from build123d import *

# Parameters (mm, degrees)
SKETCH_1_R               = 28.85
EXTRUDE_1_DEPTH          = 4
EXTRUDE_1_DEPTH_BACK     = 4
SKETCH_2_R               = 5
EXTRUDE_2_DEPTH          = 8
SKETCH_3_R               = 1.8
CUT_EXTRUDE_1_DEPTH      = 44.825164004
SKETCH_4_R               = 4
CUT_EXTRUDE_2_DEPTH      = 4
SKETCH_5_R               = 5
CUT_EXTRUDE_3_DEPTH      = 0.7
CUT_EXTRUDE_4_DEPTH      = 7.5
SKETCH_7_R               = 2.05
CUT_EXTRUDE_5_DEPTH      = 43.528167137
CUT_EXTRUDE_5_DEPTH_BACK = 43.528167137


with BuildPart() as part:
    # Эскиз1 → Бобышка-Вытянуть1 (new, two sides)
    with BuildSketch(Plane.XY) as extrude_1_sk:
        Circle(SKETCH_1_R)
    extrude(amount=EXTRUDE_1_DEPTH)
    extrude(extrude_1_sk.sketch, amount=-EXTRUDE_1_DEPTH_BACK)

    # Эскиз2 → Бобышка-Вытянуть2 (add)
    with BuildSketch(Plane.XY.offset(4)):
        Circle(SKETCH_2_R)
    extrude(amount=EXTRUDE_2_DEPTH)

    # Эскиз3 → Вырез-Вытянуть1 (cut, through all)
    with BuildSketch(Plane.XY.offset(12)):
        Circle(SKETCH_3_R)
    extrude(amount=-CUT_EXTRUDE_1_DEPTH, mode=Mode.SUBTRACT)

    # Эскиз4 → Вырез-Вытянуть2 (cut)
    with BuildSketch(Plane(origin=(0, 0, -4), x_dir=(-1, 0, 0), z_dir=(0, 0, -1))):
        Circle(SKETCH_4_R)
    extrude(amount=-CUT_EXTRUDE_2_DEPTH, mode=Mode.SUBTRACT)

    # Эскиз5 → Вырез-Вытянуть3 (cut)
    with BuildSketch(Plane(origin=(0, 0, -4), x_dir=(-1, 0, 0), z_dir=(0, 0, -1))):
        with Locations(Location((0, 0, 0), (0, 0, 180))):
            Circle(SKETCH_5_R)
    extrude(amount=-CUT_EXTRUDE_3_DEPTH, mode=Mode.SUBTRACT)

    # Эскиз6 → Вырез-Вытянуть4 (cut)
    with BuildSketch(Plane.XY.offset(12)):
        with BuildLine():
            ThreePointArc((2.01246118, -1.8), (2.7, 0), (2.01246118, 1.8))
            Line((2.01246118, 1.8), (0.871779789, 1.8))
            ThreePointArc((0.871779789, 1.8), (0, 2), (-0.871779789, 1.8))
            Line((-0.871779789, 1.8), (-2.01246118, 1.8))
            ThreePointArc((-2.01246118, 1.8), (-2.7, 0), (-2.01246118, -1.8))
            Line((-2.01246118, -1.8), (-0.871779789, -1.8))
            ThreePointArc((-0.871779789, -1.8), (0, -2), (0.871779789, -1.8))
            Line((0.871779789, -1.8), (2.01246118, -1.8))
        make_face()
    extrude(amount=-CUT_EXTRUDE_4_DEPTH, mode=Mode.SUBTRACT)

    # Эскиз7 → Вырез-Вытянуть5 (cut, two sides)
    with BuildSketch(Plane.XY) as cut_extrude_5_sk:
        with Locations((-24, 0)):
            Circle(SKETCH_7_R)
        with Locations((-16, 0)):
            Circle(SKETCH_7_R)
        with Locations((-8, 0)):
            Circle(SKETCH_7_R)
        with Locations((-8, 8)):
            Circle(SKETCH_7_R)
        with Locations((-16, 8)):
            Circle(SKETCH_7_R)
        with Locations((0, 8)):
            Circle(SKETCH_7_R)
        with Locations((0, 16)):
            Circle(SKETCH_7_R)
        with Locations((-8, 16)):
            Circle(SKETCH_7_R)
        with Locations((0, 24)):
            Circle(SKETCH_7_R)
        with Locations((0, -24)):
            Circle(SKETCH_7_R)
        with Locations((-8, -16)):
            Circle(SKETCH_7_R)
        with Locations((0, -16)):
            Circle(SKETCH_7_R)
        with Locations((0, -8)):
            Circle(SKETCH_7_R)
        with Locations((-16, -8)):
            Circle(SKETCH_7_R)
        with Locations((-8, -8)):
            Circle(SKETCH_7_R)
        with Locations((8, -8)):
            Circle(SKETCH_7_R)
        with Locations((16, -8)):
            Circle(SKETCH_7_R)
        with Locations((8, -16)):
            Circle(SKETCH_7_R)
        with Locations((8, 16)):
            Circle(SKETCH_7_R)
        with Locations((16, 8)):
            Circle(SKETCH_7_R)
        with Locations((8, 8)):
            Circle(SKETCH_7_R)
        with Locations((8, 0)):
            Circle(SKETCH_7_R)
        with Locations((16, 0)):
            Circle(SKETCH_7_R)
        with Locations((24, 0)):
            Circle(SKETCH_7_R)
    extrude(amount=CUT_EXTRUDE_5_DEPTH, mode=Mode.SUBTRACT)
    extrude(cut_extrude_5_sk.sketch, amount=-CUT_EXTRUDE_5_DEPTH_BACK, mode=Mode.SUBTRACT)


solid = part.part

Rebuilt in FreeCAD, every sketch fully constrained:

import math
import FreeCAD as App
import Part
import Sketcher

V = App.Vector

doc = App.newDocument("Part")
params = doc.addObject("Spreadsheet::Sheet", "Params")
for row, (alias, value) in enumerate([
    ("sketch1_diameter", "57.7 mm"),
    ("pad1_length", "4 mm"),
    ("pad1_length2", "4 mm"),
    ("sketch2_diameter", "10 mm"),
    ("pad2_length", "8 mm"),
    ("sketch3_diameter", "3.6 mm"),
    ("sketch4_diameter", "8 mm"),
    ("pocket2_length", "4 mm"),
    ("sketch5_diameter", "10 mm"),
    ("pocket3_length", "0.7 mm"),
    ("sketch6_radius", "2 mm"),
    ("sketch6_radius2", "2.7 mm"),
    ("pocket4_length", "7.5 mm"),
    ("sketch7_diameter", "4.1 mm"),
], start=1):
    params.set(f"A{row}", alias)
    params.set(f"B{row}", "=" + value)
    params.setAlias(f"B{row}", alias)

body = doc.addObject("PartDesign::Body", "Body")

# Sketch on XY plane
sketch1 = doc.addObject("Sketcher::SketchObject", "Sketch")
body.addObject(sketch1)
sketch1.AttachmentSupport = (doc.XY_Plane, [""])
sketch1.MapMode = "FlatFace"
sketch1.addGeometry(Part.Circle(V(0, 0, 0), V(0, 0, 1), 28.85), False)
sketch1.addConstraint([
    Sketcher.Constraint("Coincident", 0, 3, -1, 1),
    Sketcher.Constraint("Diameter", 0, 57.7),
])
sketch1.setExpression("Constraints[1]", "Params.sketch1_diameter")
pad1 = doc.addObject("PartDesign::Pad", "Pad")
body.addObject(pad1)
pad1.Profile = sketch1
pad1.Type = "TwoLengths"
pad1.setExpression("Length", "Params.pad1_length")
pad1.setExpression("Length2", "Params.pad1_length2")

# Sketch on XY plane
sketch2 = doc.addObject("Sketcher::SketchObject", "Sketch001")
body.addObject(sketch2)
sketch2.AttachmentSupport = (doc.XY_Plane, [""])
sketch2.MapMode = "FlatFace"
sketch2.AttachmentOffset = App.Placement(V(0, 0, 4), App.Rotation())
sketch2.addGeometry(Part.Circle(V(0, 0, 0), V(0, 0, 1), 5), False)
sketch2.addConstraint([
    Sketcher.Constraint("Coincident", 0, 3, -1, 1),
    Sketcher.Constraint("Diameter", 0, 10.0),
])
sketch2.setExpression("Constraints[1]", "Params.sketch2_diameter")
pad2 = doc.addObject("PartDesign::Pad", "Pad001")
body.addObject(pad2)
pad2.Profile = sketch2
pad2.setExpression("Length", "Params.pad2_length")

# Sketch on XY plane
sketch3 = doc.addObject("Sketcher::SketchObject", "Sketch002")
body.addObject(sketch3)
sketch3.AttachmentSupport = (doc.XY_Plane, [""])
sketch3.MapMode = "FlatFace"
sketch3.AttachmentOffset = App.Placement(V(0, 0, 12), App.Rotation())
sketch3.addGeometry(Part.Circle(V(0, 0, 0), V(0, 0, 1), 1.8), False)
sketch3.addConstraint([
    Sketcher.Constraint("Coincident", 0, 3, -1, 1),
    Sketcher.Constraint("Diameter", 0, 3.6),
])
sketch3.setExpression("Constraints[1]", "Params.sketch3_diameter")
pocket1 = doc.addObject("PartDesign::Pocket", "Pocket")
body.addObject(pocket1)
pocket1.Profile = sketch3
pocket1.Type = "ThroughAll"

# Sketch on XY plane
sketch4 = doc.addObject("Sketcher::SketchObject", "Sketch003")
body.addObject(sketch4)
sketch4.AttachmentSupport = (doc.XY_Plane, [""])
sketch4.MapMode = "FlatFace"
sketch4.AttachmentOffset = App.Placement(V(0, 0, -4), App.Rotation())
sketch4.addGeometry(Part.Circle(V(0, 0, 0), V(0, 0, 1), 4), False)
sketch4.addConstraint([
    Sketcher.Constraint("Coincident", 0, 3, -1, 1),
    Sketcher.Constraint("Diameter", 0, 8.0),
])
sketch4.setExpression("Constraints[1]", "Params.sketch4_diameter")
pocket2 = doc.addObject("PartDesign::Pocket", "Pocket001")
body.addObject(pocket2)
pocket2.Profile = sketch4
pocket2.setExpression("Length", "Params.pocket2_length")
pocket2.Reversed = True

# Sketch on XY plane
sketch5 = doc.addObject("Sketcher::SketchObject", "Sketch004")
body.addObject(sketch5)
sketch5.AttachmentSupport = (doc.XY_Plane, [""])
sketch5.MapMode = "FlatFace"
sketch5.AttachmentOffset = App.Placement(V(0, 0, -4), App.Rotation())
sketch5.addGeometry(Part.Circle(V(0, 0, 0), V(0, 0, 1), 5), False)
sketch5.addConstraint([
    Sketcher.Constraint("Coincident", 0, 3, -1, 1),
    Sketcher.Constraint("Diameter", 0, 10.0),
])
sketch5.setExpression("Constraints[1]", "Params.sketch5_diameter")
pocket3 = doc.addObject("PartDesign::Pocket", "Pocket002")
body.addObject(pocket3)
pocket3.Profile = sketch5
pocket3.setExpression("Length", "Params.pocket3_length")
pocket3.Reversed = True

# Sketch on XY plane
sketch6 = doc.addObject("Sketcher::SketchObject", "Sketch005")
body.addObject(sketch6)
sketch6.AttachmentSupport = (doc.XY_Plane, [""])
sketch6.MapMode = "FlatFace"
sketch6.AttachmentOffset = App.Placement(V(0, 0, 12), App.Rotation())
sketch6.addGeometry([
    Part.ArcOfCircle(Part.Circle(V(0, 0, 0), V(0, 0, 1), 2.7), math.radians(-41.810315), math.radians(41.810315)),  # 0
    Part.LineSegment(V(2.012461, 1.8, 0), V(0.87178, 1.8, 0)),  # 1
    Part.ArcOfCircle(Part.Circle(V(0, 0, 0), V(0, 0, 1), 2), math.radians(64.158067), math.radians(115.841933)),  # 2
    Part.LineSegment(V(-0.87178, 1.8, 0), V(-2.012461, 1.8, 0)),  # 3
    Part.ArcOfCircle(Part.Circle(V(0, 0, 0), V(0, 0, 1), 2.7), math.radians(138.189685), math.radians(221.810315)),  # 4
    Part.LineSegment(V(-2.012461, -1.8, 0), V(-0.87178, -1.8, 0)),  # 5
    Part.ArcOfCircle(Part.Circle(V(0, 0, 0), V(0, 0, 1), 2), math.radians(-115.841933), math.radians(-64.158067)),  # 6
    Part.LineSegment(V(0.87178, -1.8, 0), V(2.012461, -1.8, 0)),  # 7
], False)
sketch6.addConstraint([
    Sketcher.Constraint("Coincident", 0, 2, 1, 1),
    Sketcher.Constraint("Coincident", 1, 2, 2, 1),
    Sketcher.Constraint("Coincident", 2, 2, 3, 1),
    Sketcher.Constraint("Coincident", 3, 2, 4, 1),
    Sketcher.Constraint("Coincident", 4, 2, 5, 1),
    Sketcher.Constraint("Coincident", 5, 2, 6, 1),
    Sketcher.Constraint("Coincident", 6, 2, 7, 1),
    Sketcher.Constraint("Coincident", 7, 2, 0, 1),
    Sketcher.Constraint("Horizontal", 1),
    Sketcher.Constraint("Horizontal", 3),
    Sketcher.Constraint("Horizontal", 5),
    Sketcher.Constraint("Horizontal", 7),
    Sketcher.Constraint("Coincident", 0, 3, -1, 1),
    Sketcher.Constraint("Coincident", 2, 3, -1, 1),
    Sketcher.Constraint("Coincident", 4, 3, -1, 1),
    Sketcher.Constraint("Coincident", 6, 3, -1, 1),
    Sketcher.Constraint("Equal", 0, 4),
    Sketcher.Constraint("Equal", 2, 6),
    Sketcher.Constraint("Horizontal", 1, 2, 2, 2),
    Sketcher.Constraint("Horizontal", 5, 2, 6, 2),
    Sketcher.Constraint("Vertical", 3, 2, 4, 2),
    Sketcher.Constraint("Radius", 2, 2.0),
    Sketcher.Constraint("Radius", 0, 2.7),
    Sketcher.Constraint("DistanceY", -1, 1, 0, 2, 1.8),
])
sketch6.setExpression("Constraints[21]", "Params.sketch6_radius")
sketch6.setExpression("Constraints[22]", "Params.sketch6_radius2")
pocket4 = doc.addObject("PartDesign::Pocket", "Pocket003")
body.addObject(pocket4)
pocket4.Profile = sketch6
pocket4.setExpression("Length", "Params.pocket4_length")

# Sketch on XY plane
sketch7 = doc.addObject("Sketcher::SketchObject", "Sketch006")
body.addObject(sketch7)
sketch7.AttachmentSupport = (doc.XY_Plane, [""])
sketch7.MapMode = "FlatFace"
sketch7.addGeometry([
    Part.Circle(V(-24, 0, 0), V(0, 0, 1), 2.05),  # 0
    Part.Circle(V(-16, 0, 0), V(0, 0, 1), 2.05),  # 1
    Part.Circle(V(-8, 0, 0), V(0, 0, 1), 2.05),  # 2
    Part.Circle(V(-8, 8, 0), V(0, 0, 1), 2.05),  # 3
    Part.Circle(V(-16, 8, 0), V(0, 0, 1), 2.05),  # 4
    Part.Circle(V(0, 8, 0), V(0, 0, 1), 2.05),  # 5
    Part.Circle(V(0, 16, 0), V(0, 0, 1), 2.05),  # 6
    Part.Circle(V(-8, 16, 0), V(0, 0, 1), 2.05),  # 7
    Part.Circle(V(0, 24, 0), V(0, 0, 1), 2.05),  # 8
    Part.Circle(V(0, -24, 0), V(0, 0, 1), 2.05),  # 9
    Part.Circle(V(-8, -16, 0), V(0, 0, 1), 2.05),  # 10
    Part.Circle(V(0, -16, 0), V(0, 0, 1), 2.05),  # 11
    Part.Circle(V(0, -8, 0), V(0, 0, 1), 2.05),  # 12
    Part.Circle(V(-16, -8, 0), V(0, 0, 1), 2.05),  # 13
    Part.Circle(V(-8, -8, 0), V(0, 0, 1), 2.05),  # 14
    Part.Circle(V(8, -8, 0), V(0, 0, 1), 2.05),  # 15
    Part.Circle(V(16, -8, 0), V(0, 0, 1), 2.05),  # 16
    Part.Circle(V(8, -16, 0), V(0, 0, 1), 2.05),  # 17
    Part.Circle(V(8, 16, 0), V(0, 0, 1), 2.05),  # 18
    Part.Circle(V(16, 8, 0), V(0, 0, 1), 2.05),  # 19
    Part.Circle(V(8, 8, 0), V(0, 0, 1), 2.05),  # 20
    Part.Circle(V(8, 0, 0), V(0, 0, 1), 2.05),  # 21
    Part.Circle(V(16, 0, 0), V(0, 0, 1), 2.05),  # 22
    Part.Circle(V(24, 0, 0), V(0, 0, 1), 2.05),  # 23
], False)
sketch7.addConstraint([
    Sketcher.Constraint("Equal", 0, 1),
    Sketcher.Constraint("Equal", 1, 2),
    Sketcher.Constraint("Equal", 2, 3),
    Sketcher.Constraint("Equal", 3, 4),
    Sketcher.Constraint("Equal", 4, 5),
    Sketcher.Constraint("Equal", 5, 6),
    Sketcher.Constraint("Equal", 6, 7),
    Sketcher.Constraint("Equal", 7, 8),
    Sketcher.Constraint("Equal", 8, 9),
    Sketcher.Constraint("Equal", 9, 10),
    Sketcher.Constraint("Equal", 10, 11),
    Sketcher.Constraint("Equal", 11, 12),
    Sketcher.Constraint("Equal", 12, 13),
    Sketcher.Constraint("Equal", 13, 14),
    Sketcher.Constraint("Equal", 14, 15),
    Sketcher.Constraint("Equal", 15, 16),
    Sketcher.Constraint("Equal", 16, 17),
    Sketcher.Constraint("Equal", 17, 18),
    Sketcher.Constraint("Equal", 18, 19),
    Sketcher.Constraint("Equal", 19, 20),
    Sketcher.Constraint("Equal", 20, 21),
    Sketcher.Constraint("Equal", 21, 22),
    Sketcher.Constraint("Equal", 22, 23),
    Sketcher.Constraint("Symmetric", 8, 3, 9, 3, -1, 1),
    Sketcher.Constraint("Symmetric", 6, 3, 11, 3, -1, 1),
    Sketcher.Constraint("Symmetric", 5, 3, 12, 3, -1, 1),
    Sketcher.Constraint("Symmetric", 3, 3, 15, 3, -1, 1),
    Sketcher.Constraint("Symmetric", 4, 3, 16, 3, -1, 1),
    Sketcher.Constraint("Symmetric", 7, 3, 17, 3, -1, 1),
    Sketcher.Constraint("Symmetric", 10, 3, 18, 3, -1, 1),
    Sketcher.Constraint("Symmetric", 13, 3, 19, 3, -1, 1),
    Sketcher.Constraint("Symmetric", 14, 3, 20, 3, -1, 1),
    Sketcher.Constraint("Symmetric", 2, 3, 21, 3, -1, 1),
    Sketcher.Constraint("Symmetric", 1, 3, 22, 3, -1, 1),
    Sketcher.Constraint("Symmetric", 0, 3, 23, 3, -1, 1),
    Sketcher.Constraint("Symmetric", 14, 3, 15, 3, -2),
    Sketcher.Constraint("Symmetric", 13, 3, 16, 3, -2),
    Sketcher.Constraint("Symmetric", 10, 3, 17, 3, -2),
    Sketcher.Constraint("PointOnObject", 0, 3, -1),
    Sketcher.Constraint("PointOnObject", 1, 3, -1),
    Sketcher.Constraint("PointOnObject", 2, 3, -1),
    Sketcher.Constraint("PointOnObject", 5, 3, -2),
    Sketcher.Constraint("PointOnObject", 6, 3, -2),
    Sketcher.Constraint("PointOnObject", 8, 3, -2),
    Sketcher.Constraint("Horizontal", 3, 3, 4, 3),
    Sketcher.Constraint("Horizontal", 4, 3, 5, 3),
    Sketcher.Constraint("Horizontal", 6, 3, 7, 3),
    Sketcher.Constraint("Vertical", 2, 3, 3, 3),
    Sketcher.Constraint("Vertical", 1, 3, 4, 3),
    Sketcher.Constraint("Vertical", 3, 3, 7, 3),
    Sketcher.Constraint("Diameter", 0, 4.1),
    Sketcher.Constraint("DistanceX", 0, 3, -1, 1, 24.0),
    Sketcher.Constraint("DistanceX", 1, 3, -1, 1, 16.0),
    Sketcher.Constraint("DistanceX", 2, 3, -1, 1, 8.0),
    Sketcher.Constraint("DistanceY", -1, 1, 3, 3, 8.0),
    Sketcher.Constraint("DistanceY", -1, 1, 6, 3, 16.0),
    Sketcher.Constraint("DistanceY", -1, 1, 8, 3, 24.0),
])
sketch7.setExpression("Constraints[50]", "Params.sketch7_diameter")
pocket5 = doc.addObject("PartDesign::Pocket", "Pocket004")
body.addObject(pocket5)
pocket5.Profile = sketch7
pocket5.Type = "ThroughAll"
pocket5.Midplane = True

doc.recompute()
